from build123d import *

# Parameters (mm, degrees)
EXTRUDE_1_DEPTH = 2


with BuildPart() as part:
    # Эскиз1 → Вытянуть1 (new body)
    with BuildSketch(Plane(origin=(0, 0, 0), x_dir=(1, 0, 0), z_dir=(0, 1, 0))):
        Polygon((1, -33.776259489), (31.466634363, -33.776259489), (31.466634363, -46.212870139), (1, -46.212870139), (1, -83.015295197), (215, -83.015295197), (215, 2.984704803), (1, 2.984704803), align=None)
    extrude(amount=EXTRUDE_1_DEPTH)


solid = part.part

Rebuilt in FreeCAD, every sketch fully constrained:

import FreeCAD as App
import Part
import Sketcher

V = App.Vector
Q = App.Units.Quantity


def add_polygon(sketch, points):
    """Adds a closed chain of lines whose ends are joined by coincident constraints."""
    first, n = sketch.GeometryCount, len(points)
    for a, b in zip(points, points[1:] + points[:1]):
        sketch.addGeometry(Part.LineSegment(App.Vector(*a, 0), App.Vector(*b, 0)), False)
    for i in range(n):
        sketch.addConstraint(Sketcher.Constraint("Coincident", first + i, 2, first + (i + 1) % n, 1))

doc = App.newDocument("Part")
body = doc.addObject("PartDesign::Body", "Body")

# Sketch on XZ plane
sketch1 = body.newObject("Sketcher::SketchObject", "Sketch")
sketch1.AttachmentSupport = (doc.getObject("XZ_Plane"), [""])
sketch1.MapMode = "FlatFace"
add_polygon(sketch1, [(1, 34), (31, 34), (31, 46), (1, 46), (1, 83), (215, 83), (215, -3), (1, -3)])  # lines 0-7
sketch1.addConstraint([
    Sketcher.Constraint("Horizontal", 0),
    Sketcher.Constraint("Vertical", 1),
    Sketcher.Constraint("Horizontal", 2),
    Sketcher.Constraint("Vertical", 3),
    Sketcher.Constraint("Horizontal", 4),
    Sketcher.Constraint("Vertical", 5),
    Sketcher.Constraint("Horizontal", 6),
    Sketcher.Constraint("Vertical", 7),
    Sketcher.Constraint("Vertical", 3, 2, 6, 2),
    Sketcher.Constraint("DistanceX", 4, 1, 4, 2, Q("214 mm")),
    Sketcher.Constraint("DistanceY", 5, 2, 5, 1, Q("86 mm")),
    Sketcher.Constraint("DistanceX", -1, 1, 2, 2, Q("1 mm")),
    Sketcher.Constraint("DistanceY", 1, 1, 1, 2, Q("12.436611 mm")),
    Sketcher.Constraint("DistanceX", 0, 1, 0, 2, Q("30.466634 mm")),
    Sketcher.Constraint("DistanceY", 3, 1, 3, 2, Q("36.802425 mm")),
    Sketcher.Constraint("DistanceY", -1, 1, 0, 2, Q("33.776259 mm")),
])
pad1 = body.newObject("PartDesign::Pad", "Pad")
pad1.Profile = sketch1
pad1.Length = 2
pad1.Reversed = True

doc.recompute()
